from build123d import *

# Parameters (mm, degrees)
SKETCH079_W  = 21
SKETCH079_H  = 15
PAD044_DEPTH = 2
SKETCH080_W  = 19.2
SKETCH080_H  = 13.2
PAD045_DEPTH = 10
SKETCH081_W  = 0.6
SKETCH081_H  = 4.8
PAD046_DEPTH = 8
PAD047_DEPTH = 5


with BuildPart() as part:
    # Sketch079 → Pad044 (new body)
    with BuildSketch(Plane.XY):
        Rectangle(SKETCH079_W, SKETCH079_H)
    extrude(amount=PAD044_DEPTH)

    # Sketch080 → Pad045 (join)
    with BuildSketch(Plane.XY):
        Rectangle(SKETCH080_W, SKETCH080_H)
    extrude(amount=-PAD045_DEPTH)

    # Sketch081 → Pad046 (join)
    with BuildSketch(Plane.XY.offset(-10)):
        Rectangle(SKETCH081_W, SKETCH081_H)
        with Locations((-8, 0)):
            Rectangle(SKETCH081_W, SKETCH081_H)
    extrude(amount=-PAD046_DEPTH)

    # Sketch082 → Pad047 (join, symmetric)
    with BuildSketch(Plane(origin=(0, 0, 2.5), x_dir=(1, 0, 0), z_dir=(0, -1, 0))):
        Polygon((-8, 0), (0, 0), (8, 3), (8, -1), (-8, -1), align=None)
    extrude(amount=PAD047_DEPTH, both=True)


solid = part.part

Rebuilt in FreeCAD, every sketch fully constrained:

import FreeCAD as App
import Part
import Sketcher
from FreeCAD import Vector


def add_polygon(sketch, points):
    """Adds a closed chain of lines whose ends are joined by coincident constraints."""
    first, n = sketch.GeometryCount, len(points)
    for a, b in zip(points, points[1:] + points[:1]):
        sketch.addGeometry(Part.LineSegment(App.Vector(*a, 0), App.Vector(*b, 0)), False)
    for i in range(n):
        sketch.addConstraint(Sketcher.Constraint("Coincident", first + i, 2, first + (i + 1) % n, 1))

doc = App.newDocument("Part")
params = doc.addObject("Spreadsheet::Sheet", "Params")
for row, (alias, value) in enumerate([
    ("sketch1_width", "21 mm"),
    ("sketch1_height", "15 mm"),
    ("pad1_length", "2 mm"),
    ("sketch2_width", "19.2 mm"),
    ("sketch2_height", "13.2 mm"),
    ("pad2_length", "10 mm"),
    ("sketch3_width", "0.6 mm"),
    ("sketch3_height", "4.8 mm"),
    ("pad3_length", "8 mm"),
    ("sketch4_width", "8 mm"),
    ("sketch4_width2", "16 mm"),
    ("sketch4_height", "1 mm"),
    ("sketch4_height2", "4 mm"),
    ("pad4_length", "10 mm"),
], start=1):
    params.set(f"A{row}", alias)
    params.set(f"B{row}", "=" + value)
    params.setAlias(f"B{row}", alias)

body = doc.addObject("PartDesign::Body", "Body")

sketch1 = doc.addObject("Sketcher::SketchObject", "Sketch")
body.addObject(sketch1)
sketch1.AttachmentSupport = (doc.XY_Plane, [""])
sketch1.MapMode = "FlatFace"
add_polygon(sketch1, [(-10, 8), (-10, -8), (10, -8), (10, 8)])
sketch1.addConstraint(Sketcher.Constraint("Vertical", 0))
sketch1.addConstraint(Sketcher.Constraint("Horizontal", 1))
sketch1.addConstraint(Sketcher.Constraint("Vertical", 2))
sketch1.addConstraint(Sketcher.Constraint("Horizontal", 3))
sketch1.addConstraint(Sketcher.Constraint("Symmetric", 0, 2, 2, 2, -1, 1))
sketch1.addConstraint(Sketcher.Constraint("DistanceX", 1, 1, 1, 2, 21.0))
sketch1.addConstraint(Sketcher.Constraint("DistanceY", 0, 2, 0, 1, 15.0))
sketch1.setExpression("Constraints[9]", "Params.sketch1_width")
sketch1.setExpression("Constraints[10]", "Params.sketch1_height")
pad1 = doc.addObject("PartDesign::Pad", "Pad")
body.addObject(pad1)
pad1.Profile = sketch1
pad1.setExpression("Length", "Params.pad1_length")

sketch2 = doc.addObject("Sketcher::SketchObject", "Sketch001")
body.addObject(sketch2)
sketch2.AttachmentSupport = (doc.XY_Plane, [""])
sketch2.MapMode = "FlatFace"
add_polygon(sketch2, [(-10, 7), (-10, -7), (10, -7), (10, 7)])
sketch2.addConstraint(Sketcher.Constraint("Vertical", 0))
sketch2.addConstraint(Sketcher.Constraint("Horizontal", 1))
sketch2.addConstraint(Sketcher.Constraint("Vertical", 2))
sketch2.addConstraint(Sketcher.Constraint("Horizontal", 3))
sketch2.addConstraint(Sketcher.Constraint("Symmetric", 0, 2, 2, 2, -1, 1))
sketch2.addConstraint(Sketcher.Constraint("DistanceX", 1, 1, 1, 2, 19.2))
sketch2.addConstraint(Sketcher.Constraint("DistanceY", 0, 2, 0, 1, 13.2))
sketch2.setExpression("Constraints[9]", "Params.sketch2_width")
sketch2.setExpression("Constraints[10]", "Params.sketch2_height")
pad2 = doc.addObject("PartDesign::Pad", "Pad001")
body.addObject(pad2)
pad2.Profile = sketch2
pad2.setExpression("Length", "Params.pad2_length")
pad2.Reversed = True

sketch3 = doc.addObject("Sketcher::SketchObject", "Sketch002")
body.addObject(sketch3)
sketch3.AttachmentSupport = (doc.XY_Plane, [""])
sketch3.MapMode = "FlatFace"
sketch3.AttachmentOffset = App.Placement(Vector(0, 0, -10), App.Rotation())
add_polygon(sketch3, [(-0.3, 2.4), (-0.3, -2.4), (0.3, -2.4), (0.3, 2.4)])
add_polygon(sketch3, [(-8.3, 2.4), (-8.3, -2.4), (-7.7, -2.4), (-7.7, 2.4)])
sketch3.addConstraint(Sketcher.Constraint("Vertical", 0))
sketch3.addConstraint(Sketcher.Constraint("Horizontal", 1))
sketch3.addConstraint(Sketcher.Constraint("Vertical", 2))
sketch3.addConstraint(Sketcher.Constraint("Horizontal", 3))
sketch3.addConstraint(Sketcher.Constraint("Vertical", 4))
sketch3.addConstraint(Sketcher.Constraint("Horizontal", 5))
sketch3.addConstraint(Sketcher.Constraint("Vertical", 6))
sketch3.addConstraint(Sketcher.Constraint("Horizontal", 7))
sketch3.addConstraint(Sketcher.Constraint("Symmetric", 0, 2, 2, 2, -1, 1))
sketch3.addConstraint(Sketcher.Constraint("Horizontal", 1, 2, 4, 2))
sketch3.addConstraint(Sketcher.Constraint("Horizontal", 3, 2, 6, 2))
sketch3.addConstraint(Sketcher.Constraint("Equal", 3, 5))
sketch3.addConstraint(Sketcher.Constraint("DistanceX", 1, 1, 1, 2, 0.6))
sketch3.addConstraint(Sketcher.Constraint("DistanceY", 0, 2, 0, 1, 4.8))
sketch3.addConstraint(Sketcher.Constraint("DistanceX", 4, 2, 0, 2, 8.0))
sketch3.setExpression("Constraints[20]", "Params.sketch3_width")
sketch3.setExpression("Constraints[21]", "Params.sketch3_height")
pad3 = doc.addObject("PartDesign::Pad", "Pad002")
body.addObject(pad3)
pad3.Profile = sketch3
pad3.setExpression("Length", "Params.pad3_length")
pad3.Reversed = True

sketch4 = doc.addObject("Sketcher::SketchObject", "Sketch003")
body.addObject(sketch4)
sketch4.AttachmentSupport = (doc.XZ_Plane, [""])
sketch4.MapMode = "FlatFace"
add_polygon(sketch4, [(0, 2.5), (-8, 2.5), (-8, 1.5), (8, 1.5), (8, 5.5)])
sketch4.addConstraint(Sketcher.Constraint("Horizontal", 0))
sketch4.addConstraint(Sketcher.Constraint("Vertical", 1))
sketch4.addConstraint(Sketcher.Constraint("Horizontal", 2))
sketch4.addConstraint(Sketcher.Constraint("Vertical", 3))
sketch4.addConstraint(Sketcher.Constraint("PointOnObject", 4, 2, -2))
sketch4.addConstraint(Sketcher.Constraint("DistanceX", 0, 2, 0, 1, 8.0))
sketch4.addConstraint(Sketcher.Constraint("DistanceX", 2, 1, 2, 2, 16.0))
sketch4.addConstraint(Sketcher.Constraint("DistanceY", 1, 2, 1, 1, 1.0))
sketch4.addConstraint(Sketcher.Constraint("DistanceY", 3, 1, 3, 2, 4.0))
sketch4.addConstraint(Sketcher.Constraint("DistanceY", -1, 1, 0, 2, 2.5))
sketch4.setExpression("Constraints[10]", "Params.sketch4_width")
sketch4.setExpression("Constraints[11]", "Params.sketch4_width2")
sketch4.setExpression("Constraints[12]", "Params.sketch4_height")
sketch4.setExpression("Constraints[13]", "Params.sketch4_height2")
pad4 = doc.addObject("PartDesign::Pad", "Pad003")
body.addObject(pad4)
pad4.Profile = sketch4
pad4.setExpression("Length", "Params.pad4_length")
pad4.Midplane = True

doc.recompute()
